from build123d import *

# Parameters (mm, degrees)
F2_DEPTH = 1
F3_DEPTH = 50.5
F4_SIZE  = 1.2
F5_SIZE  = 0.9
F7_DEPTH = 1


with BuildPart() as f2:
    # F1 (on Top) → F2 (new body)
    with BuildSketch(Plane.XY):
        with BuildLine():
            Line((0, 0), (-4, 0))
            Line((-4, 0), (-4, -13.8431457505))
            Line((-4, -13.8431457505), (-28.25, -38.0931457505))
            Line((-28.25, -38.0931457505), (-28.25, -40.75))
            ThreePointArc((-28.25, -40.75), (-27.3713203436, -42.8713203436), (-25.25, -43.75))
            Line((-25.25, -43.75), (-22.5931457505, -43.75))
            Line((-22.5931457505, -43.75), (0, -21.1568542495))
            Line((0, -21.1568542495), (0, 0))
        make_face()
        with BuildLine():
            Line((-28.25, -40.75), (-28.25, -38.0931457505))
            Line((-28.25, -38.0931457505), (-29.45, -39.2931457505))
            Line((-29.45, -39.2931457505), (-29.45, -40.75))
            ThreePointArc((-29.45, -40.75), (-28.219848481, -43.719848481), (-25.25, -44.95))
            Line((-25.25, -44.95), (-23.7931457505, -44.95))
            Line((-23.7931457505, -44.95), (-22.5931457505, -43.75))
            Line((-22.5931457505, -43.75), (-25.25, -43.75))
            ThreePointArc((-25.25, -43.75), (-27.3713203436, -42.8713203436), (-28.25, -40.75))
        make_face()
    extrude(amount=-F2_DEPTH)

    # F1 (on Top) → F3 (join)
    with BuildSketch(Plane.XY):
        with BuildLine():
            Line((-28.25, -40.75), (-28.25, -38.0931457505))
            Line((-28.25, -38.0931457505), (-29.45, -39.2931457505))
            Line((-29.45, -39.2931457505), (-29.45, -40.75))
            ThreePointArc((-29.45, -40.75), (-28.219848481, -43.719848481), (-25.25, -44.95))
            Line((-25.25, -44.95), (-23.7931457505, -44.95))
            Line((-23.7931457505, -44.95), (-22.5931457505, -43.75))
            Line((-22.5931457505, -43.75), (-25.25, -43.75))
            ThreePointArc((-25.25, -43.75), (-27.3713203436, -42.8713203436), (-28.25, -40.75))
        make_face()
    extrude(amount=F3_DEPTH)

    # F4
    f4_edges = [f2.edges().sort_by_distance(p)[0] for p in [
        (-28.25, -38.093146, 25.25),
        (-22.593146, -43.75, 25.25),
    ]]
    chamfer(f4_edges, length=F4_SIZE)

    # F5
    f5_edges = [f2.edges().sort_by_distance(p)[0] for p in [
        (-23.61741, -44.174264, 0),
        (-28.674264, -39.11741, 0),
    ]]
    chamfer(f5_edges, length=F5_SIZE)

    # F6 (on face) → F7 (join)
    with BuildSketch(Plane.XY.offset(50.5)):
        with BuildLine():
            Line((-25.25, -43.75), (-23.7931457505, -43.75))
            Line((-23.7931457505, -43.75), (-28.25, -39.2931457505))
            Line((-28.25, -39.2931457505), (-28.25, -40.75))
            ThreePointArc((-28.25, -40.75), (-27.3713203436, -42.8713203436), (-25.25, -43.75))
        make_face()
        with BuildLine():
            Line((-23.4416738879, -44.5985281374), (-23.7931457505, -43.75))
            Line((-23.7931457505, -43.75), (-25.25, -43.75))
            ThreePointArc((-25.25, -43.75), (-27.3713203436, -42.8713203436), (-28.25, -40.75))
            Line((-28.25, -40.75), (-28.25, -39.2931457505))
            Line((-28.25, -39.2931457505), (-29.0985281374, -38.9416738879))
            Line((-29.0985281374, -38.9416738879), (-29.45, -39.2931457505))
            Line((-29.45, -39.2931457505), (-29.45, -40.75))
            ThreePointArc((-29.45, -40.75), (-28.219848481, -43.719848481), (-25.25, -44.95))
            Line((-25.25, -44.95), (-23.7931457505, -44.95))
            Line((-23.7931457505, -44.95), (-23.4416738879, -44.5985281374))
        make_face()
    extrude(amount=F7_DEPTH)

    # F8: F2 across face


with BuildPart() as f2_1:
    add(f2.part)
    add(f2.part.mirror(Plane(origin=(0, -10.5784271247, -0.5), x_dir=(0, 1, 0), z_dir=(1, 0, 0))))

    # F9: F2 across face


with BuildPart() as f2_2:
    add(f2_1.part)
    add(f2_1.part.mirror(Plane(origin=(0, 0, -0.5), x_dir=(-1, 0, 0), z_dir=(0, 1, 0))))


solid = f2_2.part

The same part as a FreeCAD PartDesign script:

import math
import FreeCAD as App
import Part
import Sketcher
from FreeCAD import Vector
Q = App.Units.Quantity


def edges_at(feature, points):
    """Names of the edges that pass closest to the given points."""
    edges = feature.Shape.Edges
    near = lambda p: min(range(len(edges)), key=lambda i: edges[i].distToShape(Part.Vertex(*p))[0])
    return sorted({f"Edge{near(p) + 1}" for p in points})

doc = App.newDocument("Part")
body = doc.addObject("PartDesign::Body", "Body")

# Sketch on XY plane
sketch1 = body.newObject("Sketcher::SketchObject", "Sketch")
sketch1.AttachmentSupport = (doc.getObject("XY_Plane"), [""])
sketch1.MapMode = "FlatFace"
sketch1.addGeometry([
    Part.LineSegment(Vector(0, 0, 0), Vector(-4, 0, 0)),  # 0
    Part.LineSegment(Vector(-4, 0, 0), Vector(-4, -13.843146, 0)),  # 1
    Part.LineSegment(Vector(-4, -13.843146, 0), Vector(-29.45, -39.293146, 0)),  # 2
    Part.LineSegment(Vector(-29.45, -39.293146, 0), Vector(-29.45, -40.75, 0)),  # 3
    Part.ArcOfCircle(Part.Circle(Vector(-25.25, -40.75, 0), Vector(0, 0, 1), 4.2), math.radians(180), math.radians(270)),  # 4
    Part.LineSegment(Vector(-25.25, -44.95, 0), Vector(-23.793146, -44.95, 0)),  # 5
    Part.LineSegment(Vector(-23.793146, -44.95, 0), Vector(0, -21.156854, 0)),  # 6
    Part.LineSegment(Vector(0, -21.156854, 0), Vector(0, 0, 0)),  # 7
], False)
sketch1.addConstraint([
    Sketcher.Constraint("Coincident", 0, 2, 1, 1),
    Sketcher.Constraint("Coincident", 1, 2, 2, 1),
    Sketcher.Constraint("Coincident", 2, 2, 3, 1),
    Sketcher.Constraint("Tangent", 3, 2, 4, 1),
    Sketcher.Constraint("Tangent", 4, 2, 5, 1),
    Sketcher.Constraint("Coincident", 5, 2, 6, 1),
    Sketcher.Constraint("Coincident", 6, 2, 7, 1),
    Sketcher.Constraint("Coincident", 7, 2, 0, 1),
    Sketcher.Constraint("Horizontal", 0),
    Sketcher.Constraint("Vertical", 1),
    Sketcher.Constraint("Vertical", 3),
    Sketcher.Constraint("Horizontal", 5),
    Sketcher.Constraint("Vertical", 7),
    Sketcher.Constraint("Coincident", 7, 2, -1, 1),
    Sketcher.Constraint("Parallel", 2, 6),
    Sketcher.Constraint("Equal", 5, 3),
    Sketcher.Constraint("Radius", 4, 4.2),
    Sketcher.Constraint("DistanceX", 0, 2, 0, 1, 4.0),
    Sketcher.Constraint("Angle", 2, Q("-135 deg")),
    Sketcher.Constraint("DistanceX", 4, 3, -1, 1, 25.25),
    Sketcher.Constraint("DistanceY", 4, 3, -1, 1, 40.75),
    Sketcher.Constraint("Distance", 6, 33.648589),
])
pad1 = body.newObject("PartDesign::Pad", "Pad")
pad1.Profile = sketch1
pad1.Length = 1
pad1.Reversed = True

# Sketch on XY plane
sketch2 = body.newObject("Sketcher::SketchObject", "Sketch001")
sketch2.AttachmentSupport = (doc.getObject("XY_Plane"), [""])
sketch2.MapMode = "FlatFace"
sketch2.addGeometry([
    Part.LineSegment(Vector(-28.25, -40.75, 0), Vector(-28.25, -38.093146, 0)),  # 0
    Part.LineSegment(Vector(-28.25, -38.093146, 0), Vector(-29.45, -39.293146, 0)),  # 1
    Part.LineSegment(Vector(-29.45, -39.293146, 0), Vector(-29.45, -40.75, 0)),  # 2
    Part.ArcOfCircle(Part.Circle(Vector(-25.25, -40.75, 0), Vector(0, 0, 1), 4.2), math.radians(180), math.radians(270)),  # 3
    Part.LineSegment(Vector(-25.25, -44.95, 0), Vector(-23.793146, -44.95, 0)),  # 4
    Part.LineSegment(Vector(-23.793146, -44.95, 0), Vector(-22.593146, -43.75, 0)),  # 5
    Part.LineSegment(Vector(-22.593146, -43.75, 0), Vector(-25.25, -43.75, 0)),  # 6
    Part.ArcOfCircle(Part.Circle(Vector(-25.25, -40.75, 0), Vector(0, 0, 1), 3), math.radians(180), math.radians(270)),  # 7
], False)
sketch2.addConstraint([
    Sketcher.Constraint("Coincident", 0, 2, 1, 1),
    Sketcher.Constraint("Coincident", 1, 2, 2, 1),
    Sketcher.Constraint("Tangent", 2, 2, 3, 1),
    Sketcher.Constraint("Tangent", 3, 2, 4, 1),
    Sketcher.Constraint("Coincident", 4, 2, 5, 1),
    Sketcher.Constraint("Coincident", 5, 2, 6, 1),
    Sketcher.Constraint("Tangent", 6, 2, 7, 2),
    Sketcher.Constraint("Tangent", 7, 1, 0, 1),
    Sketcher.Constraint("Vertical", 0),
    Sketcher.Constraint("Vertical", 2),
    Sketcher.Constraint("Horizontal", 4),
    Sketcher.Constraint("Horizontal", 6),
    Sketcher.Constraint("Coincident", 7, 3, 3, 3),
    Sketcher.Constraint("Parallel", 1, 5),
    Sketcher.Constraint("Equal", 6, 0),
    Sketcher.Constraint("Equal", 4, 2),
    Sketcher.Constraint("Radius", 7, 3.0),
    Sketcher.Constraint("Radius", 3, 4.2),
    Sketcher.Constraint("DistanceX", 3, 3, -1, 1, 25.25),
    Sketcher.Constraint("DistanceY", 3, 3, -1, 1, 40.75),
    Sketcher.Constraint("DistanceX", 4, 1, 4, 2, 1.456854),
])
pad2 = body.newObject("PartDesign::Pad", "Pad001")
pad2.Profile = sketch2
pad2.Length = 50.5
doc.recompute()

chamfer = body.newObject("PartDesign::Chamfer", "Chamfer")
chamfer.Base = (pad2, edges_at(pad2, [(-28.25, -38.093, 25.25), (-22.593, -43.75, 25.25)]))
chamfer.Size = 1.2
doc.recompute()

chamfer2 = body.newObject("PartDesign::Chamfer", "Chamfer001")
chamfer2.Base = (chamfer, edges_at(chamfer, [(-23.617, -44.174, 0), (-28.674, -39.117, 0)]))
chamfer2.Size = 0.9

# Sketch on XY plane
sketch3 = body.newObject("Sketcher::SketchObject", "Sketch002")
sketch3.AttachmentSupport = (doc.getObject("XY_Plane"), [""])
sketch3.MapMode = "FlatFace"
sketch3.AttachmentOffset = App.Placement(Vector(0, 0, 50.5), App.Rotation())
sketch3.addGeometry([
    Part.LineSegment(Vector(-23.793146, -43.75, 0), Vector(-28.25, -39.293146, 0)),  # 0
    Part.LineSegment(Vector(-28.25, -39.293146, 0), Vector(-29.098528, -38.941674, 0)),  # 1
    Part.LineSegment(Vector(-29.098528, -38.941674, 0), Vector(-29.45, -39.293146, 0)),  # 2
    Part.LineSegment(Vector(-29.45, -39.293146, 0), Vector(-29.45, -40.75, 0)),  # 3
    Part.ArcOfCircle(Part.Circle(Vector(-25.25, -40.75, 0), Vector(0, 0, 1), 4.2), math.radians(180), math.radians(270)),  # 4
    Part.LineSegment(Vector(-25.25, -44.95, 0), Vector(-23.793146, -44.95, 0)),  # 5
    Part.LineSegment(Vector(-23.793146, -44.95, 0), Vector(-23.441674, -44.598528, 0)),  # 6
    Part.LineSegment(Vector(-23.441674, -44.598528, 0), Vector(-23.793146, -43.75, 0)),  # 7
], False)
sketch3.addConstraint([
    Sketcher.Constraint("Coincident", 0, 2, 1, 1),
    Sketcher.Constraint("Coincident", 1, 2, 2, 1),
    Sketcher.Constraint("Coincident", 2, 2, 3, 1),
    Sketcher.Constraint("Tangent", 3, 2, 4, 1),
    Sketcher.Constraint("Tangent", 4, 2, 5, 1),
    Sketcher.Constraint("Coincident", 5, 2, 6, 1),
    Sketcher.Constraint("Coincident", 6, 2, 7, 1),
    Sketcher.Constraint("Coincident", 7, 2, 0, 1),
    Sketcher.Constraint("Vertical", 3),
    Sketcher.Constraint("Horizontal", 5),
    Sketcher.Constraint("Perpendicular", 0, 2),
    Sketcher.Constraint("Parallel", 2, 6),
    Sketcher.Constraint("Horizontal", 0, 2, 2, 2),
    Sketcher.Constraint("Vertical", 5, 2, 7, 2),
    Sketcher.Constraint("Equal", 5, 3),
    Sketcher.Constraint("Equal", 2, 6),
    Sketcher.Constraint("Equal", 1, 7),
    Sketcher.Constraint("Radius", 4, 4.2),
    Sketcher.Constraint("Angle", 1, Q("157.5 deg")),
    Sketcher.Constraint("DistanceX", 0, 2, 4, 3, 3.0),
    Sketcher.Constraint("DistanceX", 4, 3, -1, 1, 25.25),
    Sketcher.Constraint("DistanceY", 4, 3, -1, 1, 40.75),
    Sketcher.Constraint("DistanceX", 5, 1, 5, 2, 1.456854),
])
pad3 = body.newObject("PartDesign::Pad", "Pad002")
pad3.Profile = sketch3
pad3.Length = 1
body2 = doc.addObject("PartDesign::Body", "Body001")
doc.recompute()

body2.BaseFeature = body
doc.recompute()

mirroring = doc.addObject("Part::Mirroring", "Mirroring")
mirroring.Source = body
mirroring.Base = Vector(0, -10.578427, -0.5)
mirroring.Normal = Vector(1, 0, 0)
body3 = doc.addObject("PartDesign::Body", "Body002")
body3.BaseFeature = mirroring
boolean = body2.newObject("PartDesign::Boolean", "Boolean")
boolean.Type = "Fuse"
boolean.addObjects([body3])
doc.recompute()
body4 = doc.addObject("PartDesign::Body", "Body003")
doc.recompute()

body4.BaseFeature = body2
doc.recompute()

mirroring2 = doc.addObject("Part::Mirroring", "Mirroring001")
mirroring2.Source = body2
mirroring2.Base = Vector(0, 0, -0.5)
mirroring2.Normal = Vector(0, 1, 0)
body5 = doc.addObject("PartDesign::Body", "Body004")
body5.BaseFeature = mirroring2
boolean2 = body4.newObject("PartDesign::Boolean", "Boolean001")
boolean2.Type = "Fuse"
boolean2.addObjects([body5])
doc.recompute()
mirroring.Visibility = False
mirroring2.Visibility = False

doc.recompute()
